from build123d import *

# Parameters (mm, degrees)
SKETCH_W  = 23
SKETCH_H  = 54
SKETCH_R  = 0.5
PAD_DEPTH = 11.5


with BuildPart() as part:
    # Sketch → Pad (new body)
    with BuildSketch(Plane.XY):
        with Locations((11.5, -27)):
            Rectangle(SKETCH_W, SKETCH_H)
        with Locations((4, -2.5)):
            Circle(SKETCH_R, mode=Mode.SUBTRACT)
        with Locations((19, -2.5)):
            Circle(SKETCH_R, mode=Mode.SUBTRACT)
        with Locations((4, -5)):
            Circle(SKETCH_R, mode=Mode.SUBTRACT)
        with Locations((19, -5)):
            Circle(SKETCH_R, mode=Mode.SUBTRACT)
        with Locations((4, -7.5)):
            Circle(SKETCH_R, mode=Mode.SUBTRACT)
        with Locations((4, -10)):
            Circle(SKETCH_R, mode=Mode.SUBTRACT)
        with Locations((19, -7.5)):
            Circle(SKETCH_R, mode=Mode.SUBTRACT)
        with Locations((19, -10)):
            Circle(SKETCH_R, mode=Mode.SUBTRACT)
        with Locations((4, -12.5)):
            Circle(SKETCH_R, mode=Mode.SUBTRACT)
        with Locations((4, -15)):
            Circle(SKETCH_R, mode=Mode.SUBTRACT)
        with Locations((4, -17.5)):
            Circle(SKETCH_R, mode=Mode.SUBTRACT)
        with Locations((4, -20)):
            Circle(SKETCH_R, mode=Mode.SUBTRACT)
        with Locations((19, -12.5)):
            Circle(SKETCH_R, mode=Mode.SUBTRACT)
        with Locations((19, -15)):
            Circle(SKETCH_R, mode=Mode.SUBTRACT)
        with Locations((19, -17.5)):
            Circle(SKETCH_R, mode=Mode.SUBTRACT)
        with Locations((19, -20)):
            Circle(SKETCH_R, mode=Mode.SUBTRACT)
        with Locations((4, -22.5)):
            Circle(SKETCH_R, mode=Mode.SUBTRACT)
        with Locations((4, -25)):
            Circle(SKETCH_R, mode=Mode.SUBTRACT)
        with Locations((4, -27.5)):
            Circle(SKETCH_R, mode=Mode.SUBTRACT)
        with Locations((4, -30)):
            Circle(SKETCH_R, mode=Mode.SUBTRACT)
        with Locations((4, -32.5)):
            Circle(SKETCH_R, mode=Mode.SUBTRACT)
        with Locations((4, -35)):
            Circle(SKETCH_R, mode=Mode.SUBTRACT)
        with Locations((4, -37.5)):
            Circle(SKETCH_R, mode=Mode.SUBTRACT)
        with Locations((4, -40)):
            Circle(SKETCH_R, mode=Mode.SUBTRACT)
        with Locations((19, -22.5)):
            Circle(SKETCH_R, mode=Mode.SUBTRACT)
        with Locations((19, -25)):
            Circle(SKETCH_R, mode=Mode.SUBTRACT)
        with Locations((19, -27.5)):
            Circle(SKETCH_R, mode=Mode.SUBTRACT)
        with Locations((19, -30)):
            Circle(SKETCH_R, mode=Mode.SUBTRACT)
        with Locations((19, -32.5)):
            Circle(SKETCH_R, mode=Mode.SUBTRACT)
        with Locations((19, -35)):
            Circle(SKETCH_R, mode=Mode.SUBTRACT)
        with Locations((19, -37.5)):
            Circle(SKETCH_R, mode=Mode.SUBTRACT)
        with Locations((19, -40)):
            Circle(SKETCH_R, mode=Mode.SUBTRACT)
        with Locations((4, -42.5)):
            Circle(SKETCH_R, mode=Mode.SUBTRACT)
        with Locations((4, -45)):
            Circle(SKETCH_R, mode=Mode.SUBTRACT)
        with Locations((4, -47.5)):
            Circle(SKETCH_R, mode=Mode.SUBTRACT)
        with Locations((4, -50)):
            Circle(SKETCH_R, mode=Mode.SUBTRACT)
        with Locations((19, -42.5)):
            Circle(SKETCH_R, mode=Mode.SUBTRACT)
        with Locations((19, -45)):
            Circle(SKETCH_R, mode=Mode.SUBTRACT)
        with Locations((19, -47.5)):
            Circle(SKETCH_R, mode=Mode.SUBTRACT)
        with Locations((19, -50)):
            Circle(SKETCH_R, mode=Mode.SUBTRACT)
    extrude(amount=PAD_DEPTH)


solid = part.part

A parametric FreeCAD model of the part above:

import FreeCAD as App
import Part
import Sketcher
Q = App.Units.Quantity

doc = App.newDocument("Part")
body = doc.addObject("PartDesign::Body", "Body")

sketch1 = body.newObject("Sketcher::SketchObject", "Sketch")
sketch1.AttachmentSupport = (doc.getObject("XY_Plane"), [""])
sketch1.MapMode = "FlatFace"
sketch1.addGeometry([
    Part.LineSegment(App.Vector(0, 0, 0), App.Vector(0, -54, 0)),
    Part.LineSegment(App.Vector(0, -54, 0), App.Vector(23, -54, 0)),
    Part.LineSegment(App.Vector(23, -54, 0), App.Vector(23, 0, 0)),
    Part.LineSegment(App.Vector(23, 0, 0), App.Vector(0, 0, 0)),
    Part.Circle(App.Vector(4, -50, 0), App.Vector(0, 0, 1), 0.5),
    Part.Circle(App.Vector(4, -47.5, 0), App.Vector(0, 0, 1), 0.5),
    Part.Circle(App.Vector(4, -45, 0), App.Vector(0, 0, 1), 0.5),
    Part.Circle(App.Vector(4, -42.5, 0), App.Vector(0, 0, 1), 0.5),
    Part.Circle(App.Vector(4, -40, 0), App.Vector(0, 0, 1), 0.5),
    Part.Circle(App.Vector(4, -37.5, 0), App.Vector(0, 0, 1), 0.5),
    Part.Circle(App.Vector(4, -35, 0), App.Vector(0, 0, 1), 0.5),
    Part.Circle(App.Vector(4, -32.5, 0), App.Vector(0, 0, 1), 0.5),
    Part.Circle(App.Vector(4, -30, 0), App.Vector(0, 0, 1), 0.5),
    Part.Circle(App.Vector(4, -27.5, 0), App.Vector(0, 0, 1), 0.5),
    Part.Circle(App.Vector(19, -50, 0), App.Vector(0, 0, 1), 0.5),
    Part.Circle(App.Vector(19, -47.5, 0), App.Vector(0, 0, 1), 0.5),
    Part.Circle(App.Vector(19, -45, 0), App.Vector(0, 0, 1), 0.5),
    Part.Circle(App.Vector(19, -42.5, 0), App.Vector(0, 0, 1), 0.5),
    Part.Circle(App.Vector(19, -40, 0), App.Vector(0, 0, 1), 0.5),
    Part.Circle(App.Vector(19, -37.5, 0), App.Vector(0, 0, 1), 0.5),
    Part.Circle(App.Vector(19, -35, 0), App.Vector(0, 0, 1), 0.5),
    Part.Circle(App.Vector(19, -32.5, 0), App.Vector(0, 0, 1), 0.5),
    Part.Circle(App.Vector(19, -30, 0), App.Vector(0, 0, 1), 0.5),
    Part.Circle(App.Vector(19, -27.5, 0), App.Vector(0, 0, 1), 0.5),
    Part.Circle(App.Vector(4, -25, 0), App.Vector(0, 0, 1), 0.5),
    Part.Circle(App.Vector(4, -22.5, 0), App.Vector(0, 0, 1), 0.5),
    Part.Circle(App.Vector(4, -20, 0), App.Vector(0, 0, 1), 0.5),
    Part.Circle(App.Vector(4, -17.5, 0), App.Vector(0, 0, 1), 0.5),
    Part.Circle(App.Vector(4, -15, 0), App.Vector(0, 0, 1), 0.5),
    Part.Circle(App.Vector(4, -12.5, 0), App.Vector(0, 0, 1), 0.5),
    Part.Circle(App.Vector(4, -10, 0), App.Vector(0, 0, 1), 0.5),
    Part.Circle(App.Vector(4, -7.5, 0), App.Vector(0, 0, 1), 0.5),
    Part.Circle(App.Vector(4, -5, 0), App.Vector(0, 0, 1), 0.5),
    Part.Circle(App.Vector(4, -2.5, 0), App.Vector(0, 0, 1), 0.5),
    Part.Circle(App.Vector(19, -25, 0), App.Vector(0, 0, 1), 0.5),
    Part.Circle(App.Vector(19, -22.5, 0), App.Vector(0, 0, 1), 0.5),
    Part.Circle(App.Vector(19, -20, 0), App.Vector(0, 0, 1), 0.5),
    Part.Circle(App.Vector(19, -17.5, 0), App.Vector(0, 0, 1), 0.5),
    Part.Circle(App.Vector(19, -15, 0), App.Vector(0, 0, 1), 0.5),
    Part.Circle(App.Vector(19, -12.5, 0), App.Vector(0, 0, 1), 0.5),
    Part.Circle(App.Vector(19, -10, 0), App.Vector(0, 0, 1), 0.5),
    Part.Circle(App.Vector(19, -7.5, 0), App.Vector(0, 0, 1), 0.5),
    Part.Circle(App.Vector(19, -5, 0), App.Vector(0, 0, 1), 0.5),
    Part.Circle(App.Vector(19, -2.5, 0), App.Vector(0, 0, 1), 0.5),
], False)
sketch1.addConstraint([
    Sketcher.Constraint("Coincident", 0, 2, 1, 1),
    Sketcher.Constraint("Coincident", 1, 2, 2, 1),
    Sketcher.Constraint("Coincident", 2, 2, 3, 1),
    Sketcher.Constraint("Coincident", 3, 2, 0, 1),
    Sketcher.Constraint("Vertical", 0),
    Sketcher.Constraint("Horizontal", 1),
    Sketcher.Constraint("Vertical", 2),
    Sketcher.Constraint("Horizontal", 3),
    Sketcher.Constraint("Coincident", 3, 2, -1, 1),
    Sketcher.Constraint("Equal", 4, 5),
    Sketcher.Constraint("Equal", 5, 6),
    Sketcher.Constraint("Equal", 6, 7),
    Sketcher.Constraint("Equal", 7, 8),
    Sketcher.Constraint("Equal", 8, 9),
    Sketcher.Constraint("Equal", 9, 10),
    Sketcher.Constraint("Equal", 10, 11),
    Sketcher.Constraint("Equal", 11, 12),
    Sketcher.Constraint("Equal", 12, 13),
    Sketcher.Constraint("Equal", 13, 14),
    Sketcher.Constraint("Equal", 14, 15),
    Sketcher.Constraint("Equal", 15, 16),
    Sketcher.Constraint("Equal", 16, 17),
    Sketcher.Constraint("Equal", 17, 18),
    Sketcher.Constraint("Equal", 18, 19),
    Sketcher.Constraint("Equal", 19, 20),
    Sketcher.Constraint("Equal", 20, 21),
    Sketcher.Constraint("Equal", 21, 22),
    Sketcher.Constraint("Equal", 22, 23),
    Sketcher.Constraint("Equal", 23, 24),
    Sketcher.Constraint("Equal", 24, 25),
    Sketcher.Constraint("Equal", 25, 26),
    Sketcher.Constraint("Equal", 26, 27),
    Sketcher.Constraint("Equal", 27, 28),
    Sketcher.Constraint("Equal", 28, 29),
    Sketcher.Constraint("Equal", 29, 30),
    Sketcher.Constraint("Equal", 30, 31),
    Sketcher.Constraint("Equal", 31, 32),
    Sketcher.Constraint("Equal", 32, 33),
    Sketcher.Constraint("Equal", 33, 34),
    Sketcher.Constraint("Equal", 34, 35),
    Sketcher.Constraint("Equal", 35, 36),
    Sketcher.Constraint("Equal", 36, 37),
    Sketcher.Constraint("Equal", 37, 38),
    Sketcher.Constraint("Equal", 38, 39),
    Sketcher.Constraint("Equal", 39, 40),
    Sketcher.Constraint("Equal", 40, 41),
    Sketcher.Constraint("Equal", 41, 42),
    Sketcher.Constraint("Equal", 42, 43),
    Sketcher.Constraint("Horizontal", 4, 3, 14, 3),
    Sketcher.Constraint("Horizontal", 5, 3, 15, 3),
    Sketcher.Constraint("Horizontal", 6, 3, 16, 3),
    Sketcher.Constraint("Horizontal", 7, 3, 17, 3),
    Sketcher.Constraint("Horizontal", 8, 3, 18, 3),
    Sketcher.Constraint("Horizontal", 9, 3, 19, 3),
    Sketcher.Constraint("Horizontal", 10, 3, 20, 3),
    Sketcher.Constraint("Horizontal", 11, 3, 21, 3),
    Sketcher.Constraint("Horizontal", 12, 3, 22, 3),
    Sketcher.Constraint("Horizontal", 13, 3, 23, 3),
    Sketcher.Constraint("Horizontal", 24, 3, 34, 3),
    Sketcher.Constraint("Horizontal", 25, 3, 35, 3),
    Sketcher.Constraint("Horizontal", 26, 3, 36, 3),
    Sketcher.Constraint("Horizontal", 27, 3, 37, 3),
    Sketcher.Constraint("Horizontal", 28, 3, 38, 3),
    Sketcher.Constraint("Horizontal", 29, 3, 39, 3),
    Sketcher.Constraint("Horizontal", 30, 3, 40, 3),
    Sketcher.Constraint("Horizontal", 31, 3, 41, 3),
    Sketcher.Constraint("Horizontal", 32, 3, 42, 3),
    Sketcher.Constraint("Horizontal", 33, 3, 43, 3),
    Sketcher.Constraint("Vertical", 4, 3, 5, 3),
    Sketcher.Constraint("Vertical", 5, 3, 6, 3),
    Sketcher.Constraint("Vertical", 6, 3, 7, 3),
    Sketcher.Constraint("Vertical", 7, 3, 8, 3),
    Sketcher.Constraint("Vertical", 8, 3, 9, 3),
    Sketcher.Constraint("Vertical", 9, 3, 10, 3),
    Sketcher.Constraint("Vertical", 10, 3, 11, 3),
    Sketcher.Constraint("Vertical", 11, 3, 12, 3),
    Sketcher.Constraint("Vertical", 12, 3, 13, 3),
    Sketcher.Constraint("Vertical", 14, 3, 15, 3),
    Sketcher.Constraint("Vertical", 15, 3, 16, 3),
    Sketcher.Constraint("Vertical", 16, 3, 17, 3),
    Sketcher.Constraint("Vertical", 17, 3, 18, 3),
    Sketcher.Constraint("Vertical", 18, 3, 19, 3),
    Sketcher.Constraint("Vertical", 19, 3, 20, 3),
    Sketcher.Constraint("Vertical", 20, 3, 21, 3),
    Sketcher.Constraint("Vertical", 21, 3, 22, 3),
    Sketcher.Constraint("Vertical", 22, 3, 23, 3),
    Sketcher.Constraint("Vertical", 13, 3, 24, 3),
    Sketcher.Constraint("Vertical", 24, 3, 25, 3),
    Sketcher.Constraint("Vertical", 25, 3, 26, 3),
    Sketcher.Constraint("Vertical", 26, 3, 27, 3),
    Sketcher.Constraint("Vertical", 27, 3, 28, 3),
    Sketcher.Constraint("Vertical", 28, 3, 29, 3),
    Sketcher.Constraint("Vertical", 29, 3, 30, 3),
    Sketcher.Constraint("Vertical", 30, 3, 31, 3),
    Sketcher.Constraint("Vertical", 31, 3, 32, 3),
    Sketcher.Constraint("Vertical", 32, 3, 33, 3),
    Sketcher.Constraint("Vertical", 23, 3, 34, 3),
    Sketcher.Constraint("Vertical", 34, 3, 35, 3),
    Sketcher.Constraint("Vertical", 35, 3, 36, 3),
    Sketcher.Constraint("Vertical", 36, 3, 37, 3),
    Sketcher.Constraint("Vertical", 37, 3, 38, 3),
    Sketcher.Constraint("Vertical", 38, 3, 39, 3),
    Sketcher.Constraint("Vertical", 39, 3, 40, 3),
    Sketcher.Constraint("Vertical", 40, 3, 41, 3),
    Sketcher.Constraint("Vertical", 41, 3, 42, 3),
    Sketcher.Constraint("Vertical", 42, 3, 43, 3),
    Sketcher.Constraint("Diameter", 4, Q("1 mm")),
    Sketcher.Constraint("DistanceX", 1, 1, 1, 2, Q("23 mm")),
    Sketcher.Constraint("DistanceY", 0, 2, 0, 1, Q("54 mm")),
    Sketcher.Constraint("DistanceX", -1, 1, 4, 3, Q("4 mm")),
    Sketcher.Constraint("DistanceY", 4, 3, -1, 1, Q("50 mm")),
    Sketcher.Constraint("DistanceY", 6, 3, -1, 1, Q("45 mm")),
    Sketcher.Constraint("DistanceY", 8, 3, -1, 1, Q("40 mm")),
    Sketcher.Constraint("DistanceY", 10, 3, -1, 1, Q("35 mm")),
    Sketcher.Constraint("DistanceY", 12, 3, -1, 1, Q("30 mm")),
    Sketcher.Constraint("DistanceX", -1, 1, 14, 3, Q("19 mm")),
    Sketcher.Constraint("DistanceY", 24, 3, -1, 1, Q("25 mm")),
    Sketcher.Constraint("DistanceY", 26, 3, -1, 1, Q("20 mm")),
    Sketcher.Constraint("DistanceY", 28, 3, -1, 1, Q("15 mm")),
    Sketcher.Constraint("DistanceY", 30, 3, -1, 1, Q("10 mm")),
    Sketcher.Constraint("DistanceY", 32, 3, -1, 1, Q("5 mm")),
    Sketcher.Constraint("DistanceY", 5, 3, 7, 3, Q("5 mm")),
    Sketcher.Constraint("DistanceY", 7, 3, 9, 3, Q("5 mm")),
    Sketcher.Constraint("DistanceY", 9, 3, 11, 3, Q("5 mm")),
    Sketcher.Constraint("DistanceY", 11, 3, 13, 3, Q("5 mm")),
    Sketcher.Constraint("DistanceY", 13, 3, 25, 3, Q("5 mm")),
    Sketcher.Constraint("DistanceY", 25, 3, 27, 3, Q("5 mm")),
    Sketcher.Constraint("DistanceY", 27, 3, 29, 3, Q("5 mm")),
    Sketcher.Constraint("DistanceY", 29, 3, 31, 3, Q("5 mm")),
    Sketcher.Constraint("DistanceY", 31, 3, 33, 3, Q("5 mm")),
    Sketcher.Constraint("DistanceY", 5, 3, -1, 1, Q("47.5 mm")),
])
pad1 = body.newObject("PartDesign::Pad", "Pad")
pad1.Profile = sketch1
pad1.Length = 11.5

doc.recompute()
